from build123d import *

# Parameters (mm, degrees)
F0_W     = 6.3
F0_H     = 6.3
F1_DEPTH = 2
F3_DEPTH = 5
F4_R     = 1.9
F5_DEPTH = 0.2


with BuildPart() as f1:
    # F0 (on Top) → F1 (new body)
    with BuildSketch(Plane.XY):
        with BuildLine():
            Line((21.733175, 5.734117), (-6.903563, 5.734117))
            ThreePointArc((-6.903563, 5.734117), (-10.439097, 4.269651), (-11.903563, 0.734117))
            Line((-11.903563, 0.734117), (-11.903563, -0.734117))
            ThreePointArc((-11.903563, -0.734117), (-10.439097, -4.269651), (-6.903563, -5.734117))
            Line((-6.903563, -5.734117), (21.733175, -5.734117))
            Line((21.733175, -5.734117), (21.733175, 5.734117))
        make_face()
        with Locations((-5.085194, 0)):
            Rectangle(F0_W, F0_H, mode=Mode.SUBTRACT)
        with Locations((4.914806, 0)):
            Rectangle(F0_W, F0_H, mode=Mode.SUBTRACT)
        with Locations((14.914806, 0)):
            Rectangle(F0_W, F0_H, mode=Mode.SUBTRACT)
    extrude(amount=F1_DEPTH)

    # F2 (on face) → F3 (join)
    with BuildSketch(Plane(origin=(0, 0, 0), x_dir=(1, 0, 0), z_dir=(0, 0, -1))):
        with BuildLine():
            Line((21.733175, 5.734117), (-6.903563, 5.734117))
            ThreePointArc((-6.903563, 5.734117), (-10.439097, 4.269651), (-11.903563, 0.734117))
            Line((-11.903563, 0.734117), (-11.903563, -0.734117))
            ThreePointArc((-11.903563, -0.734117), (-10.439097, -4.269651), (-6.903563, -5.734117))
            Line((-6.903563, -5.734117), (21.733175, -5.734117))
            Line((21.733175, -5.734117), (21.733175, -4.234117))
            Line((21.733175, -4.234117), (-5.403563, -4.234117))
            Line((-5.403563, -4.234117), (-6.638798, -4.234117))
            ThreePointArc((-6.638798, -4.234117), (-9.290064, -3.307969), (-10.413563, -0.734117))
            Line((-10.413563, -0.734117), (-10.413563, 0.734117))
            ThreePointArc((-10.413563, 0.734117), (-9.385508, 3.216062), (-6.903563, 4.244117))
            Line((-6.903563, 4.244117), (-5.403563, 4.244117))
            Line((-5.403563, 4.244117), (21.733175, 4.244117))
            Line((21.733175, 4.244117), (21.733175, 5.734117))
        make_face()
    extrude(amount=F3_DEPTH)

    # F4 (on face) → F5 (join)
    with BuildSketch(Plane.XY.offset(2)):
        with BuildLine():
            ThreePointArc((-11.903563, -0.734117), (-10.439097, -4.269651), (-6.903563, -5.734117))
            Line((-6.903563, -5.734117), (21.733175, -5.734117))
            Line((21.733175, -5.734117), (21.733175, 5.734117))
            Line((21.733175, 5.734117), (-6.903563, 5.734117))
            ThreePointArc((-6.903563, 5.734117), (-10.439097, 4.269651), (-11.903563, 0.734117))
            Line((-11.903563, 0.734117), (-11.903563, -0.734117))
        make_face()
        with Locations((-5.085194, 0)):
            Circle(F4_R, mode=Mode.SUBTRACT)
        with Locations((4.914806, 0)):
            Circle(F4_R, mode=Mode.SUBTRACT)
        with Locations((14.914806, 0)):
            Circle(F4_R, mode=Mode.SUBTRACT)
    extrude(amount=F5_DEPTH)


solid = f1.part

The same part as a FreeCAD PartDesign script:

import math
import FreeCAD as App
import Part
import Sketcher
from FreeCAD import Vector


def add_polygon(sketch, points):
    """Adds a closed chain of lines whose ends are joined by coincident constraints."""
    first, n = sketch.GeometryCount, len(points)
    for a, b in zip(points, points[1:] + points[:1]):
        sketch.addGeometry(Part.LineSegment(App.Vector(*a, 0), App.Vector(*b, 0)), False)
    for i in range(n):
        sketch.addConstraint(Sketcher.Constraint("Coincident", first + i, 2, first + (i + 1) % n, 1))

doc = App.newDocument("Part")
params = doc.addObject("Spreadsheet::Sheet", "Params")
for row, (alias, value) in enumerate([
    ("sketch1_radius", "5 mm"),
    ("sketch1_width", "6.3 mm"),
    ("pad1_length", "2 mm"),
    ("sketch2_radius", "5 mm"),
    ("sketch2_radius2", "3.51 mm"),
    ("sketch2_height", "1.5 mm"),
    ("pad2_length", "5 mm"),
    ("sketch3_radius", "5 mm"),
    ("sketch3_diameter", "3.8 mm"),
    ("pad3_length", "0.2 mm"),
], start=1):
    params.set(f"A{row}", alias)
    params.set(f"B{row}", "=" + value)
    params.setAlias(f"B{row}", alias)

body = doc.addObject("PartDesign::Body", "Body")

sketch1 = body.newObject("Sketcher::SketchObject", "Sketch")
sketch1.AttachmentSupport = (doc.getObject("XY_Plane"), [""])
sketch1.MapMode = "FlatFace"
sketch1.addGeometry(Part.LineSegment(Vector(21.7, 5.7, 0), Vector(-6.9, 5.7, 0)), False)
sketch1.addGeometry(Part.ArcOfCircle(Part.Circle(Vector(-6.9, 0.7, 0), Vector(0, 0, 1), 5), math.radians(90), math.radians(180)), False)
sketch1.addGeometry(Part.LineSegment(Vector(-11.9, 0.7, 0), Vector(-11.9, -0.7, 0)), False)
sketch1.addGeometry(Part.ArcOfCircle(Part.Circle(Vector(-6.9, -0.7, 0), Vector(0, 0, 1), 5), math.radians(180), math.radians(270)), False)
sketch1.addGeometry(Part.LineSegment(Vector(-6.9, -5.7, 0), Vector(21.7, -5.7, 0)), False)
sketch1.addGeometry(Part.LineSegment(Vector(21.7, -5.7, 0), Vector(21.7, 5.7, 0)), False)
add_polygon(sketch1, [(-1.9, -3.1), (-8.2, -3.1), (-8.2, 3.1), (-1.9, 3.1)])
add_polygon(sketch1, [(8.1, -3.1), (1.8, -3.1), (1.8, 3.1), (8.1, 3.1)])
add_polygon(sketch1, [(18.1, -3.1), (11.8, -3.1), (11.8, 3.1), (18.1, 3.1)])
sketch1.addConstraint(Sketcher.Constraint("Tangent", 0, 2, 1, 1))
sketch1.addConstraint(Sketcher.Constraint("Tangent", 1, 2, 2, 1))
sketch1.addConstraint(Sketcher.Constraint("Tangent", 2, 2, 3, 1))
sketch1.addConstraint(Sketcher.Constraint("Tangent", 3, 2, 4, 1))
sketch1.addConstraint(Sketcher.Constraint("Coincident", 4, 2, 5, 1))
sketch1.addConstraint(Sketcher.Constraint("Coincident", 5, 2, 0, 1))
sketch1.addConstraint(Sketcher.Constraint("Horizontal", 0))
sketch1.addConstraint(Sketcher.Constraint("Vertical", 2))
sketch1.addConstraint(Sketcher.Constraint("Horizontal", 4))
sketch1.addConstraint(Sketcher.Constraint("Vertical", 5))
sketch1.addConstraint(Sketcher.Constraint("Horizontal", 6))
sketch1.addConstraint(Sketcher.Constraint("Vertical", 7))
sketch1.addConstraint(Sketcher.Constraint("Horizontal", 8))
sketch1.addConstraint(Sketcher.Constraint("Vertical", 9))
sketch1.addConstraint(Sketcher.Constraint("Horizontal", 10))
sketch1.addConstraint(Sketcher.Constraint("Vertical", 11))
sketch1.addConstraint(Sketcher.Constraint("Horizontal", 12))
sketch1.addConstraint(Sketcher.Constraint("Vertical", 13))
sketch1.addConstraint(Sketcher.Constraint("Horizontal", 14))
sketch1.addConstraint(Sketcher.Constraint("Vertical", 15))
sketch1.addConstraint(Sketcher.Constraint("Horizontal", 16))
sketch1.addConstraint(Sketcher.Constraint("Vertical", 17))
sketch1.addConstraint(Sketcher.Constraint("Equal", 1, 3))
sketch1.addConstraint(Sketcher.Constraint("Horizontal", 9, 2, 10, 2))
sketch1.addConstraint(Sketcher.Constraint("Horizontal", 8, 2, 11, 2))
sketch1.addConstraint(Sketcher.Constraint("Horizontal", 13, 2, 14, 2))
sketch1.addConstraint(Sketcher.Constraint("Horizontal", 12, 2, 15, 2))
sketch1.addConstraint(Sketcher.Constraint("Equal", 8, 10))
sketch1.addConstraint(Sketcher.Constraint("Equal", 12, 14))
sketch1.addConstraint(Sketcher.Constraint("Equal", 16, 7))
sketch1.addConstraint(Sketcher.Constraint("Radius", 1, 5.0))
sketch1.addConstraint(Sketcher.Constraint("DistanceX", 6, 2, 6, 1, 6.3))
sketch1.addConstraint(Sketcher.Constraint("DistanceX", 8, 2, 12, 2, 10.0))
sketch1.addConstraint(Sketcher.Constraint("DistanceX", 10, 2, 14, 2, 10.0))
sketch1.addConstraint(Sketcher.Constraint("DistanceY", 6, 2, -1, 1, 3.15))
sketch1.addConstraint(Sketcher.Constraint("DistanceX", 0, 2, 0, 1, 28.636738))
sketch1.addConstraint(Sketcher.Constraint("DistanceY", 2, 2, 2, 1, 1.468234))
sketch1.addConstraint(Sketcher.Constraint("DistanceX", 6, 2, 3, 3, 1.331631))
sketch1.addConstraint(Sketcher.Constraint("DistanceX", 1, 3, -1, 1, 6.903563))
sketch1.addConstraint(Sketcher.Constraint("DistanceY", -1, 1, 1, 3, 0.734117))
sketch1.setExpression("Constraints[42]", "Params.sketch1_radius")
sketch1.setExpression("Constraints[43]", "Params.sketch1_width")
pad1 = body.newObject("PartDesign::Pad", "Pad")
pad1.Profile = sketch1
pad1.setExpression("Length", "Params.pad1_length")

sketch2 = body.newObject("Sketcher::SketchObject", "Sketch001")
sketch2.AttachmentSupport = (doc.getObject("XY_Plane"), [""])
sketch2.MapMode = "FlatFace"
sketch2.addGeometry(Part.LineSegment(Vector(21.7, -5.7, 0), Vector(-6.9, -5.7, 0)), False)
sketch2.addGeometry(Part.ArcOfCircle(Part.Circle(Vector(-6.9, -0.7, 0), Vector(0, 0, 1), 5), math.radians(180), math.radians(270)), False)
sketch2.addGeometry(Part.LineSegment(Vector(-11.9, -0.7, 0), Vector(-11.9, 0.7, 0)), False)
sketch2.addGeometry(Part.ArcOfCircle(Part.Circle(Vector(-6.9, 0.7, 0), Vector(0, 0, 1), 5), math.radians(90), math.radians(180)), False)
sketch2.addGeometry(Part.LineSegment(Vector(-6.9, 5.7, 0), Vector(21.7, 5.7, 0)), False)
sketch2.addGeometry(Part.LineSegment(Vector(21.7, 5.7, 0), Vector(21.7, 4.2, 0)), False)
sketch2.addGeometry(Part.LineSegment(Vector(21.7, 4.2, 0), Vector(-6.6, 4.2, 0)), False)
sketch2.addGeometry(Part.ArcOfCircle(Part.Circle(Vector(-6.9, 0.7, 0), Vector(0, 0, 1), 3.5), math.radians(86), math.radians(180)), False)
sketch2.addGeometry(Part.LineSegment(Vector(-10.4, 0.7, 0), Vector(-10.4, -0.7, 0)), False)
sketch2.addGeometry(Part.ArcOfCircle(Part.Circle(Vector(-6.9, -0.7, 0), Vector(0, 0, 1), 3.5), math.radians(180), math.radians(270)), False)
sketch2.addGeometry(Part.LineSegment(Vector(-6.9, -4.2, 0), Vector(21.7, -4.2, 0)), False)
sketch2.addGeometry(Part.LineSegment(Vector(21.7, -4.2, 0), Vector(21.7, -5.7, 0)), False)
sketch2.addConstraint(Sketcher.Constraint("Tangent", 0, 2, 1, 2))
sketch2.addConstraint(Sketcher.Constraint("Tangent", 1, 1, 2, 1))
sketch2.addConstraint(Sketcher.Constraint("Tangent", 2, 2, 3, 2))
sketch2.addConstraint(Sketcher.Constraint("Tangent", 3, 1, 4, 1))
sketch2.addConstraint(Sketcher.Constraint("Coincident", 4, 2, 5, 1))
sketch2.addConstraint(Sketcher.Constraint("Coincident", 5, 2, 6, 1))
sketch2.addConstraint(Sketcher.Constraint("Coincident", 6, 2, 7, 1))
sketch2.addConstraint(Sketcher.Constraint("Tangent", 7, 2, 8, 1))
sketch2.addConstraint(Sketcher.Constraint("Tangent", 8, 2, 9, 1))
sketch2.addConstraint(Sketcher.Constraint("Tangent", 9, 2, 10, 1))
sketch2.addConstraint(Sketcher.Constraint("Coincident", 10, 2, 11, 1))
sketch2.addConstraint(Sketcher.Constraint("Coincident", 11, 2, 0, 1))
sketch2.addConstraint(Sketcher.Constraint("Horizontal", 0))
sketch2.addConstraint(Sketcher.Constraint("Vertical", 2))
sketch2.addConstraint(Sketcher.Constraint("Horizontal", 4))
sketch2.addConstraint(Sketcher.Constraint("Vertical", 5))
sketch2.addConstraint(Sketcher.Constraint("Horizontal", 6))
sketch2.addConstraint(Sketcher.Constraint("Vertical", 8))
sketch2.addConstraint(Sketcher.Constraint("Horizontal", 10))
sketch2.addConstraint(Sketcher.Constraint("Vertical", 11))
sketch2.addConstraint(Sketcher.Constraint("Coincident", 7, 3, 3, 3))
sketch2.addConstraint(Sketcher.Constraint("Coincident", 9, 3, 1, 3))
sketch2.addConstraint(Sketcher.Constraint("Equal", 1, 3))
sketch2.addConstraint(Sketcher.Constraint("Symmetric", 4, 2, 11, 2, -1))
sketch2.addConstraint(Sketcher.Constraint("Radius", 1, 5.0))
sketch2.addConstraint(Sketcher.Constraint("Radius", 7, 3.51))
sketch2.addConstraint(Sketcher.Constraint("DistanceY", 5, 2, 5, 1, 1.5))
sketch2.addConstraint(Sketcher.Constraint("DistanceX", 0, 2, 0, 1, 28.636738))
sketch2.addConstraint(Sketcher.Constraint("DistanceX", 6, 2, -1, 1, 6.638798))
sketch2.addConstraint(Sketcher.Constraint("DistanceY", 2, 1, 2, 2, 1.468234))
sketch2.setExpression("Constraints[24]", "Params.sketch2_radius")
sketch2.setExpression("Constraints[25]", "Params.sketch2_radius2")
sketch2.setExpression("Constraints[26]", "Params.sketch2_height")
pad2 = body.newObject("PartDesign::Pad", "Pad001")
pad2.Profile = sketch2
pad2.setExpression("Length", "Params.pad2_length")
pad2.Reversed = True

sketch3 = body.newObject("Sketcher::SketchObject", "Sketch002")
sketch3.AttachmentSupport = (doc.getObject("XY_Plane"), [""])
sketch3.MapMode = "FlatFace"
sketch3.AttachmentOffset = App.Placement(Vector(0, 0, 2), App.Rotation())
sketch3.addGeometry(Part.ArcOfCircle(Part.Circle(Vector(-6.9, -0.7, 0), Vector(0, 0, 1), 5), math.radians(180), math.radians(270)), False)
sketch3.addGeometry(Part.LineSegment(Vector(-6.9, -5.7, 0), Vector(21.7, -5.7, 0)), False)
sketch3.addGeometry(Part.LineSegment(Vector(21.7, -5.7, 0), Vector(21.7, 5.7, 0)), False)
sketch3.addGeometry(Part.LineSegment(Vector(21.7, 5.7, 0), Vector(-6.9, 5.7, 0)), False)
sketch3.addGeometry(Part.ArcOfCircle(Part.Circle(Vector(-6.9, 0.7, 0), Vector(0, 0, 1), 5), math.radians(90), math.radians(180)), False)
sketch3.addGeometry(Part.LineSegment(Vector(-11.9, 0.7, 0), Vector(-11.9, -0.7, 0)), False)
sketch3.addGeometry(Part.Circle(Vector(-5.1, 0, 0), Vector(0, 0, 1), 1.9), False)
sketch3.addGeometry(Part.Circle(Vector(4.9, 0, 0), Vector(0, 0, 1), 1.9), False)
sketch3.addGeometry(Part.Circle(Vector(14.9, 0, 0), Vector(0, 0, 1), 1.9), False)
sketch3.addConstraint(Sketcher.Constraint("Tangent", 0, 2, 1, 1))
sketch3.addConstraint(Sketcher.Constraint("Coincident", 1, 2, 2, 1))
sketch3.addConstraint(Sketcher.Constraint("Coincident", 2, 2, 3, 1))
sketch3.addConstraint(Sketcher.Constraint("Tangent", 3, 2, 4, 1))
sketch3.addConstraint(Sketcher.Constraint("Tangent", 4, 2, 5, 1))
sketch3.addConstraint(Sketcher.Constraint("Tangent", 5, 2, 0, 1))
sketch3.addConstraint(Sketcher.Constraint("Horizontal", 1))
sketch3.addConstraint(Sketcher.Constraint("Vertical", 2))
sketch3.addConstraint(Sketcher.Constraint("Horizontal", 3))
sketch3.addConstraint(Sketcher.Constraint("Vertical", 5))
sketch3.addConstraint(Sketcher.Constraint("Equal", 0, 4))
sketch3.addConstraint(Sketcher.Constraint("Equal", 6, 7))
sketch3.addConstraint(Sketcher.Constraint("Equal", 7, 8))
sketch3.addConstraint(Sketcher.Constraint("PointOnObject", 6, 3, -1))
sketch3.addConstraint(Sketcher.Constraint("PointOnObject", 7, 3, -1))
sketch3.addConstraint(Sketcher.Constraint("PointOnObject", 8, 3, -1))
sketch3.addConstraint(Sketcher.Constraint("Radius", 0, 5.0))
sketch3.addConstraint(Sketcher.Constraint("Diameter", 6, 3.8))
sketch3.addConstraint(Sketcher.Constraint("DistanceX", 6, 3, 7, 3, 10.0))
sketch3.addConstraint(Sketcher.Constraint("DistanceX", 7, 3, 8, 3, 10.0))
sketch3.addConstraint(Sketcher.Constraint("DistanceX", 1, 1, 1, 2, 28.636738))
sketch3.addConstraint(Sketcher.Constraint("DistanceY", 2, 1, 2, 2, 11.468234))
sketch3.addConstraint(Sketcher.Constraint("DistanceX", 0, 3, 6, 3, 1.818369))
sketch3.addConstraint(Sketcher.Constraint("DistanceX", 0, 3, -1, 1, 6.903563))
sketch3.addConstraint(Sketcher.Constraint("DistanceY", 0, 3, -1, 1, 0.734117))
sketch3.setExpression("Constraints[16]", "Params.sketch3_radius")
sketch3.setExpression("Constraints[17]", "Params.sketch3_diameter")
pad3 = body.newObject("PartDesign::Pad", "Pad002")
pad3.Profile = sketch3
pad3.setExpression("Length", "Params.pad3_length")

doc.recompute()
